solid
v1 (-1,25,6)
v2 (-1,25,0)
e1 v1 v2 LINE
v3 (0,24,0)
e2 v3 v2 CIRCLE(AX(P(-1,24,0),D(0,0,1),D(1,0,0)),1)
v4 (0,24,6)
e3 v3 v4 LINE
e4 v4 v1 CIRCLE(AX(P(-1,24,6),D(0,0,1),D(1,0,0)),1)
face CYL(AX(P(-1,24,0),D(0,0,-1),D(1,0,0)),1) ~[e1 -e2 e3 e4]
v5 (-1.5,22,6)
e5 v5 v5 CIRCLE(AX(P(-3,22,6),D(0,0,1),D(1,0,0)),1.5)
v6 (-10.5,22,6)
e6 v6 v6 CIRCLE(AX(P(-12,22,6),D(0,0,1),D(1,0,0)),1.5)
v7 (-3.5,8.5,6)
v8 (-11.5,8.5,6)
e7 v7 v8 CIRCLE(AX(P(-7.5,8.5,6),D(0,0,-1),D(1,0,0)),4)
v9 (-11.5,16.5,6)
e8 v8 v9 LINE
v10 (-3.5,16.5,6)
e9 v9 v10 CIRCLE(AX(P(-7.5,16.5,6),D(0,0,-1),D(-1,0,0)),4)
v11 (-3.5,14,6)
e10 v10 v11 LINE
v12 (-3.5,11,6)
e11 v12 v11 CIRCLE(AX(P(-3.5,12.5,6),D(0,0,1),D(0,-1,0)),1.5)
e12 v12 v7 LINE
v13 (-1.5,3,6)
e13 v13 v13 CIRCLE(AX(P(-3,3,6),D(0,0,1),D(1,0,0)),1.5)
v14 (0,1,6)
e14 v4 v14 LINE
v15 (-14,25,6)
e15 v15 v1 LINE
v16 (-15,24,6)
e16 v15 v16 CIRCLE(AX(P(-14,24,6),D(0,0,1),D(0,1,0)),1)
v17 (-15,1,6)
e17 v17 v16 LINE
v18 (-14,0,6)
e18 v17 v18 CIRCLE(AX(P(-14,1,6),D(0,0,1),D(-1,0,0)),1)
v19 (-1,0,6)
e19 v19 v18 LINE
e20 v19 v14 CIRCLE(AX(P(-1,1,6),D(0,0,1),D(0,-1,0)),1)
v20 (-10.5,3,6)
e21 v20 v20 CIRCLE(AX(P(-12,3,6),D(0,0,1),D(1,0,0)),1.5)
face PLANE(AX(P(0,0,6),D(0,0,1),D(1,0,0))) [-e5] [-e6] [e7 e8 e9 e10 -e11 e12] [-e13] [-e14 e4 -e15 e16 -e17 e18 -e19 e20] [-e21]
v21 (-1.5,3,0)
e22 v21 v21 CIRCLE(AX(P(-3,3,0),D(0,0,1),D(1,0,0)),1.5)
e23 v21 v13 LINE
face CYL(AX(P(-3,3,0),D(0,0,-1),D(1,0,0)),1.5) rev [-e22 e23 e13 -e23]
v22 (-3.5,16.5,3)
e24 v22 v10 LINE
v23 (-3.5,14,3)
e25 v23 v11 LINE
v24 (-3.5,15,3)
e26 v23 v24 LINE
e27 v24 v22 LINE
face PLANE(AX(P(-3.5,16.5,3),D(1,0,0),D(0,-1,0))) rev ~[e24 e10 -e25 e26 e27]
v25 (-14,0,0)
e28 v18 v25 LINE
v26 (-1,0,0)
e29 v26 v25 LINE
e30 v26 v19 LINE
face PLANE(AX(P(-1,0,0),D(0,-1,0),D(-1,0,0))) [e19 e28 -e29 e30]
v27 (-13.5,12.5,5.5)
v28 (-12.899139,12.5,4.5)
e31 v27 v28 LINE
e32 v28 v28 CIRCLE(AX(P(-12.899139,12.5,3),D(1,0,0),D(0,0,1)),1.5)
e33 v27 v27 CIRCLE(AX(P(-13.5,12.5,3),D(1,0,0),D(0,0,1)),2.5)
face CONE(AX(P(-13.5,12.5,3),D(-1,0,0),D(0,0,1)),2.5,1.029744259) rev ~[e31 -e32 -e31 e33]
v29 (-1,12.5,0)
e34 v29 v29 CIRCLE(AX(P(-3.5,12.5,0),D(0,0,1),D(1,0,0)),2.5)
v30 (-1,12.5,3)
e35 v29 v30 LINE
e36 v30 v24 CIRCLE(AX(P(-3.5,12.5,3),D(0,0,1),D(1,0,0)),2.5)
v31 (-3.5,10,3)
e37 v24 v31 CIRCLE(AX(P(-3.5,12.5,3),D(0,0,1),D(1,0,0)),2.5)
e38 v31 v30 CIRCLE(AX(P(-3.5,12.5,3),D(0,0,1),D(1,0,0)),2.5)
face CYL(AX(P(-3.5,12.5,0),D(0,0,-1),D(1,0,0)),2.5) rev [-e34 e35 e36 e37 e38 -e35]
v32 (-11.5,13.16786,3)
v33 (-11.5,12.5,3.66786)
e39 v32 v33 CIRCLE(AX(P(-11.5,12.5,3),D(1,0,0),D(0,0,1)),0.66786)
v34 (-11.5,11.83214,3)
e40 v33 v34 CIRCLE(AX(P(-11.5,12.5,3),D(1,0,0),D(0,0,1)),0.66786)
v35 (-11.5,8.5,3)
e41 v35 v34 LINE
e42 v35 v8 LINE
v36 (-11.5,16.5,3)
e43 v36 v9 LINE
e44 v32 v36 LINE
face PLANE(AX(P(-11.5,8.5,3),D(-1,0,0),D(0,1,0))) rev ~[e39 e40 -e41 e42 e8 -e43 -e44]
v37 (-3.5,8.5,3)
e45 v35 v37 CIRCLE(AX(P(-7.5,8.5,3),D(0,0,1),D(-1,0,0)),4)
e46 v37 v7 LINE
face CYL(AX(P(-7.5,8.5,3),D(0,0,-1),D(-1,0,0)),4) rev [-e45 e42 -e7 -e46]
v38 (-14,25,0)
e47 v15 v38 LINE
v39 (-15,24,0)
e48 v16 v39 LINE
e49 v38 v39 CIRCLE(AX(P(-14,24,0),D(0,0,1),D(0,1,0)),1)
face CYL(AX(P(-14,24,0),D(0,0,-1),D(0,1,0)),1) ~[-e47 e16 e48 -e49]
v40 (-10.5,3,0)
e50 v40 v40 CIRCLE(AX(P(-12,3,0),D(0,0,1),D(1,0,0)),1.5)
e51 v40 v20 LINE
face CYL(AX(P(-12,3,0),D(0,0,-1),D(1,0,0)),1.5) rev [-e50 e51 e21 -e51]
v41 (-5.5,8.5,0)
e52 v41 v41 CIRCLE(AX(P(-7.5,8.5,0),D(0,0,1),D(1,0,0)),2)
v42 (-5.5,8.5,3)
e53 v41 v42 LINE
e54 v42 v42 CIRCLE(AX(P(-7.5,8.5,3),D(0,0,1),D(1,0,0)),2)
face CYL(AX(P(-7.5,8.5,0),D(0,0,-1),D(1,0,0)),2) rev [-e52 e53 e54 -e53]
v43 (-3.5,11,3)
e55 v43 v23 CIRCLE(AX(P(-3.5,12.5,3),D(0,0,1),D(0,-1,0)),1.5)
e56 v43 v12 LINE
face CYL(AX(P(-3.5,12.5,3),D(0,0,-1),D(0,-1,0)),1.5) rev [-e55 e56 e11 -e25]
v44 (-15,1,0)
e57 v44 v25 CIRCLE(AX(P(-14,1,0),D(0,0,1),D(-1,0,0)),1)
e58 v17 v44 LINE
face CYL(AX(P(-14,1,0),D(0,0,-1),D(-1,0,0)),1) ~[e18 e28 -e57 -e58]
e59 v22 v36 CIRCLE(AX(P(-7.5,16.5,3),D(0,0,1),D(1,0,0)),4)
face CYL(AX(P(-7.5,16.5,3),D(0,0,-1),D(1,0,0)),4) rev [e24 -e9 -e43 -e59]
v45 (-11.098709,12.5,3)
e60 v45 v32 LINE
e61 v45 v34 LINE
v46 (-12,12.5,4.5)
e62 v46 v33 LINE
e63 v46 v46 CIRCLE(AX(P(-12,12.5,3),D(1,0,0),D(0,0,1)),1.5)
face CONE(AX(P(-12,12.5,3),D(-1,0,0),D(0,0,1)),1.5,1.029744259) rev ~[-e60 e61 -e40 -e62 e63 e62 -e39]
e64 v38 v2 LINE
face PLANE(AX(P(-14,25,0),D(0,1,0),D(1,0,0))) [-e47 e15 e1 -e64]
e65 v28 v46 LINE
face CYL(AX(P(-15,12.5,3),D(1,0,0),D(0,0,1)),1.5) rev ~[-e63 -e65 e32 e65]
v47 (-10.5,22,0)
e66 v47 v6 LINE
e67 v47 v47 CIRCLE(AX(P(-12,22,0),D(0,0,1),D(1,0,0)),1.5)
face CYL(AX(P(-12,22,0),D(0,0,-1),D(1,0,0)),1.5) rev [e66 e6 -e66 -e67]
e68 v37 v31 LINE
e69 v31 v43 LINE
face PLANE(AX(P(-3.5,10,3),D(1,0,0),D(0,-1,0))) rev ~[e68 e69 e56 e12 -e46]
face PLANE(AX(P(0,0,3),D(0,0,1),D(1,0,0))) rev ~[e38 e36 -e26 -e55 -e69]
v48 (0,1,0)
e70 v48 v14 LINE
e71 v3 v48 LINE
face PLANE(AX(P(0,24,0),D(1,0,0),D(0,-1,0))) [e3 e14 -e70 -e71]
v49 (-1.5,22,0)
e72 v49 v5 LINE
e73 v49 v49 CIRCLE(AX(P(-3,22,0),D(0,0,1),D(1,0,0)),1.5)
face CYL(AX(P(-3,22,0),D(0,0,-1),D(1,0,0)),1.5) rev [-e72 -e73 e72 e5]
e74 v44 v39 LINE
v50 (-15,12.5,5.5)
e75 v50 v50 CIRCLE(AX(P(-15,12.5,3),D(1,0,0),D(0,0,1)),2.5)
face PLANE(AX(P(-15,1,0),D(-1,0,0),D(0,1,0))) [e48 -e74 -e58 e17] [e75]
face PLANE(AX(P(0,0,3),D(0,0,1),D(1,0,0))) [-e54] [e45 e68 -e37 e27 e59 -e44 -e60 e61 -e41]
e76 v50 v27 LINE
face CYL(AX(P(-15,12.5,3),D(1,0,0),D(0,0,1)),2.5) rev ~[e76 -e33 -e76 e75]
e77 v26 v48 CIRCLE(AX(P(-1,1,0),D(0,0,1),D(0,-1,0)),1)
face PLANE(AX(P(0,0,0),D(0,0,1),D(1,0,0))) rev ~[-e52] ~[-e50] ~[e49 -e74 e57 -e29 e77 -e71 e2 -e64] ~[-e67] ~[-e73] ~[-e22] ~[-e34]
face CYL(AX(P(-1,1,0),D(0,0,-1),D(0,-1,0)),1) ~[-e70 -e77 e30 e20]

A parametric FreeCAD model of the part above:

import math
import FreeCAD as App
import Part
import Sketcher

V = App.Vector
Q = App.Units.Quantity

doc = App.newDocument("Part")
body = doc.addObject("PartDesign::Body", "Body")

# Sketch on XY plane
sketch1 = body.newObject("Sketcher::SketchObject", "Sketch")
sketch1.AttachmentSupport = (doc.getObject("XY_Plane"), [""])
sketch1.MapMode = "FlatFace"
sketch1.addGeometry([
    Part.LineSegment(V(-14, 0, 0), V(-1, 0, 0)),  # 0
    Part.ArcOfCircle(Part.Circle(V(-1, 1, 0), V(0, 0, 1), 1), math.radians(-90), math.radians(0)),  # 1
    Part.LineSegment(V(0, 1, 0), V(0, 24, 0)),  # 2
    Part.ArcOfCircle(Part.Circle(V(-1, 24, 0), V(0, 0, 1), 1), math.radians(0), math.radians(90)),  # 3
    Part.LineSegment(V(-1, 25, 0), V(-14, 25, 0)),  # 4
    Part.ArcOfCircle(Part.Circle(V(-14, 24, 0), V(0, 0, 1), 1), math.radians(90), math.radians(180)),  # 5
    Part.LineSegment(V(-15, 24, 0), V(-15, 1, 0)),  # 6
    Part.ArcOfCircle(Part.Circle(V(-14, 1, 0), V(0, 0, 1), 1), math.radians(180), math.radians(270)),  # 7
    Part.Circle(V(-12, 3, 0), V(0, 0, 1), 1.5),  # 8
    Part.Circle(V(-3, 3, 0), V(0, 0, 1), 1.5),  # 9
    Part.Circle(V(-7.5, 8.5, 0), V(0, 0, 1), 2),  # 10
    Part.Circle(V(-12, 22, 0), V(0, 0, 1), 1.5),  # 11
    Part.Circle(V(-3.5, 12.5, 0), V(0, 0, 1), 2.5),  # 12
    Part.Circle(V(-3, 22, 0), V(0, 0, 1), 1.5),  # 13
], False)
sketch1.addConstraint([
    Sketcher.Constraint("Tangent", 0, 2, 1, 1),
    Sketcher.Constraint("Tangent", 1, 2, 2, 1),
    Sketcher.Constraint("Tangent", 2, 2, 3, 1),
    Sketcher.Constraint("Tangent", 3, 2, 4, 1),
    Sketcher.Constraint("Tangent", 4, 2, 5, 1),
    Sketcher.Constraint("Tangent", 5, 2, 6, 1),
    Sketcher.Constraint("Tangent", 6, 2, 7, 1),
    Sketcher.Constraint("Tangent", 7, 2, 0, 1),
    Sketcher.Constraint("Horizontal", 0),
    Sketcher.Constraint("Vertical", 2),
    Sketcher.Constraint("Horizontal", 4),
    Sketcher.Constraint("Vertical", 6),
    Sketcher.Constraint("Equal", 1, 3),
    Sketcher.Constraint("Equal", 3, 5),
    Sketcher.Constraint("Equal", 5, 7),
    Sketcher.Constraint("Equal", 8, 9),
    Sketcher.Constraint("Equal", 9, 11),
    Sketcher.Constraint("Equal", 11, 13),
    Sketcher.Constraint("PointOnObject", 0, 2, -1),
    Sketcher.Constraint("PointOnObject", 1, 2, -2),
    Sketcher.Constraint("Horizontal", 8, 3, 9, 3),
    Sketcher.Constraint("Horizontal", 11, 3, 13, 3),
    Sketcher.Constraint("Vertical", 8, 3, 11, 3),
    Sketcher.Constraint("Vertical", 9, 3, 13, 3),
    Sketcher.Constraint("Diameter", 8, Q("3 mm")),
    Sketcher.Constraint("Diameter", 10, Q("4 mm")),
    Sketcher.Constraint("Diameter", 12, Q("5 mm")),
    Sketcher.Constraint("Radius", 1, Q("1 mm")),
    Sketcher.Constraint("DistanceY", -1, 1, 8, 3, Q("3 mm")),
    Sketcher.Constraint("DistanceX", 9, 3, -1, 1, Q("3 mm")),
    Sketcher.Constraint("DistanceY", -1, 1, 3, 2, Q("25 mm")),
    Sketcher.Constraint("DistanceX", 5, 2, -1, 1, Q("15 mm")),
    Sketcher.Constraint("DistanceY", 8, 3, 11, 3, Q("19 mm")),
    Sketcher.Constraint("DistanceX", 10, 3, 12, 3, Q("4 mm")),
    Sketcher.Constraint("DistanceY", 10, 3, 12, 3, Q("4 mm")),
    Sketcher.Constraint("DistanceX", 5, 2, 11, 3, Q("3 mm")),
    Sketcher.Constraint("DistanceX", 10, 3, -1, 1, Q("7.5 mm")),
    Sketcher.Constraint("DistanceY", -1, 1, 10, 3, Q("8.5 mm")),
])
pad1 = body.newObject("PartDesign::Pad", "Pad")
pad1.Profile = sketch1
pad1.Length = 3

# Sketch on XY plane
sketch2 = body.newObject("Sketcher::SketchObject", "Sketch001")
sketch2.AttachmentSupport = (doc.getObject("XY_Plane"), [""])
sketch2.MapMode = "FlatFace"
sketch2.AttachmentOffset = App.Placement(V(0, 0, 3), App.Rotation())
sketch2.addGeometry([
    Part.LineSegment(V(-14, 0, 0), V(-1, 0, 0)),  # 0
    Part.ArcOfCircle(Part.Circle(V(-1, 1, 0), V(0, 0, 1), 1), math.radians(-90), math.radians(0)),  # 1
    Part.LineSegment(V(0, 1, 0), V(0, 24, 0)),  # 2
    Part.ArcOfCircle(Part.Circle(V(-1, 24, 0), V(0, 0, 1), 1), math.radians(0), math.radians(90)),  # 3
    Part.LineSegment(V(-1, 25, 0), V(-14, 25, 0)),  # 4
    Part.ArcOfCircle(Part.Circle(V(-14, 24, 0), V(0, 0, 1), 1), math.radians(90), math.radians(180)),  # 5
    Part.LineSegment(V(-15, 24, 0), V(-15, 1, 0)),  # 6
    Part.ArcOfCircle(Part.Circle(V(-14, 1, 0), V(0, 0, 1), 1), math.radians(180), math.radians(270)),  # 7
    Part.Circle(V(-12, 3, 0), V(0, 0, 1), 1.5),  # 8
    Part.Circle(V(-3, 3, 0), V(0, 0, 1), 1.5),  # 9
    Part.Circle(V(-12, 22, 0), V(0, 0, 1), 1.5),  # 10
    Part.LineSegment(V(-3.5, 16.5, 0), V(-3.5, 14, 0)),  # 11
    Part.ArcOfCircle(Part.Circle(V(-3.5, 12.5, 0), V(0, 0, 1), 1.5), math.radians(-90), math.radians(90)),  # 12
    Part.LineSegment(V(-3.5, 11, 0), V(-3.5, 8.5, 0)),  # 13
    Part.ArcOfCircle(Part.Circle(V(-7.5, 8.5, 0), V(0, 0, 1), 4), math.radians(180), math.radians(360)),  # 14
    Part.LineSegment(V(-11.5, 8.5, 0), V(-11.5, 16.5, 0)),  # 15
    Part.ArcOfCircle(Part.Circle(V(-7.5, 16.5, 0), V(0, 0, 1), 4), math.radians(0), math.radians(180)),  # 16
    Part.Circle(V(-3, 22, 0), V(0, 0, 1), 1.5),  # 17
], False)
sketch2.addConstraint([
    Sketcher.Constraint("Tangent", 0, 2, 1, 1),
    Sketcher.Constraint("Tangent", 1, 2, 2, 1),
    Sketcher.Constraint("Tangent", 2, 2, 3, 1),
    Sketcher.Constraint("Tangent", 3, 2, 4, 1),
    Sketcher.Constraint("Tangent", 4, 2, 5, 1),
    Sketcher.Constraint("Tangent", 5, 2, 6, 1),
    Sketcher.Constraint("Tangent", 6, 2, 7, 1),
    Sketcher.Constraint("Tangent", 7, 2, 0, 1),
    Sketcher.Constraint("Coincident", 11, 2, 12, 2),
    Sketcher.Constraint("Coincident", 12, 1, 13, 1),
    Sketcher.Constraint("Tangent", 13, 2, 14, 2),
    Sketcher.Constraint("Tangent", 14, 1, 15, 1),
    Sketcher.Constraint("Tangent", 15, 2, 16, 2),
    Sketcher.Constraint("Tangent", 16, 1, 11, 1),
    Sketcher.Constraint("Horizontal", 0),
    Sketcher.Constraint("Vertical", 2),
    Sketcher.Constraint("Horizontal", 4),
    Sketcher.Constraint("Vertical", 6),
    Sketcher.Constraint("Vertical", 11),
    Sketcher.Constraint("Vertical", 13),
    Sketcher.Constraint("Vertical", 15),
    Sketcher.Constraint("Equal", 1, 3),
    Sketcher.Constraint("Equal", 3, 5),
    Sketcher.Constraint("Equal", 5, 7),
    Sketcher.Constraint("Equal", 8, 9),
    Sketcher.Constraint("Equal", 9, 10),
    Sketcher.Constraint("Equal", 10, 12),
    Sketcher.Constraint("Equal", 14, 16),
    Sketcher.Constraint("Equal", 12, 17),
    Sketcher.Constraint("PointOnObject", 0, 2, -1),
    Sketcher.Constraint("PointOnObject", 1, 2, -2),
    Sketcher.Constraint("Horizontal", 8, 3, 9, 3),
    Sketcher.Constraint("Horizontal", 10, 3, 17, 3),
    Sketcher.Constraint("Vertical", 8, 3, 10, 3),
    Sketcher.Constraint("Vertical", 9, 3, 17, 3),
    Sketcher.Constraint("Vertical", 12, 3, 11, 2),
    Sketcher.Constraint("Equal", 11, 13),
    Sketcher.Constraint("Diameter", 8, Q("3 mm")),
    Sketcher.Constraint("Radius", 1, Q("1 mm")),
    Sketcher.Constraint("Radius", 14, Q("4 mm")),
    Sketcher.Constraint("DistanceY", 15, 1, 15, 2, Q("8 mm")),
    Sketcher.Constraint("DistanceY", -1, 1, 8, 3, Q("3 mm")),
    Sketcher.Constraint("DistanceX", 9, 3, -1, 1, Q("3 mm")),
    Sketcher.Constraint("DistanceY", -1, 1, 3, 2, Q("25 mm")),
    Sketcher.Constraint("DistanceX", 5, 2, -1, 1, Q("15 mm")),
    Sketcher.Constraint("DistanceY", 8, 3, 10, 3, Q("19 mm")),
    Sketcher.Constraint("DistanceX", 5, 2, 10, 3, Q("3 mm")),
    Sketcher.Constraint("DistanceY", 11, 2, 17, 3, Q("8 mm")),
    Sketcher.Constraint("DistanceX", 12, 3, -1, 1, Q("3.5 mm")),
])
pad2 = body.newObject("PartDesign::Pad", "Pad001")
pad2.Profile = sketch2
pad2.Length = 3

# Sketch on YZ plane
sketch3 = body.newObject("Sketcher::SketchObject", "Sketch002")
sketch3.AttachmentSupport = (doc.getObject("YZ_Plane"), [""])
sketch3.MapMode = "FlatFace"
sketch3.AttachmentOffset = App.Placement(V(0, 0, -15), App.Rotation())
sketch3.addGeometry(Part.Circle(V(12.5, 3, 0), V(0, 0, 1), 2.5), False)
sketch3.addConstraint([
    Sketcher.Constraint("Diameter", 0, Q("5 mm")),
    Sketcher.Constraint("DistanceY", -1, 1, 0, 3, Q("3 mm")),
    Sketcher.Constraint("DistanceX", -1, 1, 0, 3, Q("12.5 mm")),
])
doc.recompute()
hole = body.newObject("PartDesign::Hole", "Hole")
hole.Profile = sketch3
hole.ThreadType = "None"
hole.Diameter = 5
hole.DepthType = "Dimension"
hole.Depth = 1.5
hole.DrillPoint = "Angled"
hole.DrillPointAngle = 118
hole.Reversed = True

# Sketch on YZ plane
sketch4 = body.newObject("Sketcher::SketchObject", "Sketch003")
sketch4.AttachmentSupport = (doc.getObject("YZ_Plane"), [""])
sketch4.MapMode = "FlatFace"
sketch4.AttachmentOffset = App.Placement(V(0, 0, -15), App.Rotation())
sketch4.addGeometry(Part.Circle(V(12.5, 3, 0), V(0, 0, 1), 1.5), False)
sketch4.addConstraint([
    Sketcher.Constraint("Diameter", 0, Q("3 mm")),
    Sketcher.Constraint("DistanceY", -1, 1, 0, 3, Q("3 mm")),
    Sketcher.Constraint("DistanceX", -1, 1, 0, 3, Q("12.5 mm")),
])
doc.recompute()
hole2 = body.newObject("PartDesign::Hole", "Hole001")
hole2.Profile = sketch4
hole2.ThreadType = "None"
hole2.Diameter = 3
hole2.DepthType = "Dimension"
hole2.Depth = 3
hole2.DrillPoint = "Angled"
hole2.DrillPointAngle = 118
hole2.Reversed = True

doc.recompute()
